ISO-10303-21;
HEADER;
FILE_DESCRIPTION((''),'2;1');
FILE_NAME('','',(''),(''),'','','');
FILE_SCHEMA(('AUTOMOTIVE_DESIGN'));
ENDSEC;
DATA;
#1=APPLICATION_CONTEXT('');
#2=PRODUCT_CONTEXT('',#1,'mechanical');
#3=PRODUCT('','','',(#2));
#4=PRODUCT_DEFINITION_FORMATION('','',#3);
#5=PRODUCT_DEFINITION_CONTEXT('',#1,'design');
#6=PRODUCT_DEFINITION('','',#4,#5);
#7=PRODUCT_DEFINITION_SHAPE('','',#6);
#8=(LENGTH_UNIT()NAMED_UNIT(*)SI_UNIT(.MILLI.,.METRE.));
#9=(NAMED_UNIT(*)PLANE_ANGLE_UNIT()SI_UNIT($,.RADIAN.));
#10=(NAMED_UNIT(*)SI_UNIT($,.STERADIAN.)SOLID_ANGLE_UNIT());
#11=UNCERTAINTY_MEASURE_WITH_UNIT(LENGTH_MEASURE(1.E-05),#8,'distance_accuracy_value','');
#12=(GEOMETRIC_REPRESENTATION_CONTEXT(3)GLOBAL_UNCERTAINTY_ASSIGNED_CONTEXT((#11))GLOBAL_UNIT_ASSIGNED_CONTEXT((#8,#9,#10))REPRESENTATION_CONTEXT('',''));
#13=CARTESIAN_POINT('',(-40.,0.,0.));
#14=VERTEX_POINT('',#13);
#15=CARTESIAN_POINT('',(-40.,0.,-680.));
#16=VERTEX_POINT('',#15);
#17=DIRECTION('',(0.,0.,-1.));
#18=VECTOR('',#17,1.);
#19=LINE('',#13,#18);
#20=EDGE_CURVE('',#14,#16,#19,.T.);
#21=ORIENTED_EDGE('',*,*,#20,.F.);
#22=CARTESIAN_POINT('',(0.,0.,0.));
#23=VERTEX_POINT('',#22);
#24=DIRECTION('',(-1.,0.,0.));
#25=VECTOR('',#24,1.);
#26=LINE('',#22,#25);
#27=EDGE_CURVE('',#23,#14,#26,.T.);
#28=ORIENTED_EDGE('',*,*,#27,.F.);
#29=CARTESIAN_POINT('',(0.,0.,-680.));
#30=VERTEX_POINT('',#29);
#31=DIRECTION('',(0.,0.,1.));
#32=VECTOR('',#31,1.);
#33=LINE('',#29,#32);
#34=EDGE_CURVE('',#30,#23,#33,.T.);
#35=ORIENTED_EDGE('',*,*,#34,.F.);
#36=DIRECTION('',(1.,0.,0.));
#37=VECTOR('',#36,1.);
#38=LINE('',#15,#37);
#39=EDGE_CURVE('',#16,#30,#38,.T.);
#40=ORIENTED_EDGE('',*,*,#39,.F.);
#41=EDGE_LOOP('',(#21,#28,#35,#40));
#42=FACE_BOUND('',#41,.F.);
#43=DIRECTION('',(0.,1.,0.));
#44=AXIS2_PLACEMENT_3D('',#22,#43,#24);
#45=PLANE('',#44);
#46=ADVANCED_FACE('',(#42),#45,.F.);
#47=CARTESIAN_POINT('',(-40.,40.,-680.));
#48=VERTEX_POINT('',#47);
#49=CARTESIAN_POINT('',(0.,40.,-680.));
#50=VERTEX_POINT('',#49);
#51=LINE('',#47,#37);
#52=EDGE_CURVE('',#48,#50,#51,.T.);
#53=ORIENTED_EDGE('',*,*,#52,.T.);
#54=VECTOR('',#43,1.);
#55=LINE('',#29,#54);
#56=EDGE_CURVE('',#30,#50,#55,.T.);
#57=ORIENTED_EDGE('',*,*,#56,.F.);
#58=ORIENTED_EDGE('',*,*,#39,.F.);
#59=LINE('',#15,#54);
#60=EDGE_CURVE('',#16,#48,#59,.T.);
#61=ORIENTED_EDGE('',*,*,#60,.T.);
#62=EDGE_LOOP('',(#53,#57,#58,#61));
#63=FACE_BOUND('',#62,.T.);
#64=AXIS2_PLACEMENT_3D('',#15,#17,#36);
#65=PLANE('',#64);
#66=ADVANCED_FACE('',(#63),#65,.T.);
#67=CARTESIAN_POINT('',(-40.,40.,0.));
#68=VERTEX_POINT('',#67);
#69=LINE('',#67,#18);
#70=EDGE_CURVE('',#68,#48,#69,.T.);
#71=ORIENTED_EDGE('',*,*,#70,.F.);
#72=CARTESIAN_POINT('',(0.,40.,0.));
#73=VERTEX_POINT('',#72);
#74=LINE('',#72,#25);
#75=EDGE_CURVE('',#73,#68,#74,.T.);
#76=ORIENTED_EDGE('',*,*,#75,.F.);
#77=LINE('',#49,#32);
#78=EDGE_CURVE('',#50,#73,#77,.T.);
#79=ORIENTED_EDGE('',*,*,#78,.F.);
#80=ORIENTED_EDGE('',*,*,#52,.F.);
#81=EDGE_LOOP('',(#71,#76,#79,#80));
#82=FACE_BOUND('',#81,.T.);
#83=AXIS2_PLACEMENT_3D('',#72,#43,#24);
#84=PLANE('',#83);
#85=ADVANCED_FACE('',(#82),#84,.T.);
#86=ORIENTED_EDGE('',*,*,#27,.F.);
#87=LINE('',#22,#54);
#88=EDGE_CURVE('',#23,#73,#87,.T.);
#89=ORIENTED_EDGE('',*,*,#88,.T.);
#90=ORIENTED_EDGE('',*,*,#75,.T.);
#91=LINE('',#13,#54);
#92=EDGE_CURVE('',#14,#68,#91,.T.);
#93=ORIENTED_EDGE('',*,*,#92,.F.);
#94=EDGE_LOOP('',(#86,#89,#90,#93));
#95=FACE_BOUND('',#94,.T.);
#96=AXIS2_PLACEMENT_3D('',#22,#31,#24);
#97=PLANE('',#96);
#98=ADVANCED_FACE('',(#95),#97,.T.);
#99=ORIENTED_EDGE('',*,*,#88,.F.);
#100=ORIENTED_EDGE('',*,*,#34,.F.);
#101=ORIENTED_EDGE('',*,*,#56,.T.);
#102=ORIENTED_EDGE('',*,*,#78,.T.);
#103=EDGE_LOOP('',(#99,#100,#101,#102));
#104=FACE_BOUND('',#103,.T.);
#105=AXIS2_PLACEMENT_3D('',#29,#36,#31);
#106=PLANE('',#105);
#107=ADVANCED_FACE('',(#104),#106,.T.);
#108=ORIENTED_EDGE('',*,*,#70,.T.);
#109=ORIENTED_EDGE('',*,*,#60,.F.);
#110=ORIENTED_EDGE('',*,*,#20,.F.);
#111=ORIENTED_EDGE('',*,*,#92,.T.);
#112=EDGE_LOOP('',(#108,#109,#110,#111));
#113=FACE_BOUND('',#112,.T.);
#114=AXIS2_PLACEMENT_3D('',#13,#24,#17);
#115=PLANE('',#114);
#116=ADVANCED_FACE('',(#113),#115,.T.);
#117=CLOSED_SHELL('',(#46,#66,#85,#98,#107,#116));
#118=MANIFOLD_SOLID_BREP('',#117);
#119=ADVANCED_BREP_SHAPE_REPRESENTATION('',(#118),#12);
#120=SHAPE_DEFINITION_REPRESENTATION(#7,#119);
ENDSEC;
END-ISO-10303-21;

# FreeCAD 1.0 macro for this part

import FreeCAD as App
import Part
import Sketcher

V = App.Vector


def add_polygon(sketch, points):
    """Adds a closed chain of lines whose ends are joined by coincident constraints."""
    first, n = sketch.GeometryCount, len(points)
    for a, b in zip(points, points[1:] + points[:1]):
        sketch.addGeometry(Part.LineSegment(App.Vector(*a, 0), App.Vector(*b, 0)), False)
    for i in range(n):
        sketch.addConstraint(Sketcher.Constraint("Coincident", first + i, 2, first + (i + 1) % n, 1))

doc = App.newDocument("Part")
body = doc.addObject("PartDesign::Body", "Body")

# Sketch on XZ plane
sketch1 = doc.addObject("Sketcher::SketchObject", "Sketch")
body.addObject(sketch1)
sketch1.AttachmentSupport = (doc.XZ_Plane, [""])
sketch1.MapMode = "FlatFace"
add_polygon(sketch1, [(-40, 0), (0, 0), (0, -680), (-40, -680)])  # lines 0-3
sketch1.addConstraint([
    Sketcher.Constraint("Horizontal", 0),
    Sketcher.Constraint("Vertical", 1),
    Sketcher.Constraint("Horizontal", 2),
    Sketcher.Constraint("Vertical", 3),
    Sketcher.Constraint("Coincident", 0, 2, -1, 1),
    Sketcher.Constraint("DistanceX", 0, 1, 0, 2, 40.0),
    Sketcher.Constraint("DistanceY", 1, 2, 1, 1, 680.0),
])
pad1 = doc.addObject("PartDesign::Pad", "Pad")
body.addObject(pad1)
pad1.Profile = sketch1
pad1.Length = 40
pad1.Reversed = True

doc.recompute()
